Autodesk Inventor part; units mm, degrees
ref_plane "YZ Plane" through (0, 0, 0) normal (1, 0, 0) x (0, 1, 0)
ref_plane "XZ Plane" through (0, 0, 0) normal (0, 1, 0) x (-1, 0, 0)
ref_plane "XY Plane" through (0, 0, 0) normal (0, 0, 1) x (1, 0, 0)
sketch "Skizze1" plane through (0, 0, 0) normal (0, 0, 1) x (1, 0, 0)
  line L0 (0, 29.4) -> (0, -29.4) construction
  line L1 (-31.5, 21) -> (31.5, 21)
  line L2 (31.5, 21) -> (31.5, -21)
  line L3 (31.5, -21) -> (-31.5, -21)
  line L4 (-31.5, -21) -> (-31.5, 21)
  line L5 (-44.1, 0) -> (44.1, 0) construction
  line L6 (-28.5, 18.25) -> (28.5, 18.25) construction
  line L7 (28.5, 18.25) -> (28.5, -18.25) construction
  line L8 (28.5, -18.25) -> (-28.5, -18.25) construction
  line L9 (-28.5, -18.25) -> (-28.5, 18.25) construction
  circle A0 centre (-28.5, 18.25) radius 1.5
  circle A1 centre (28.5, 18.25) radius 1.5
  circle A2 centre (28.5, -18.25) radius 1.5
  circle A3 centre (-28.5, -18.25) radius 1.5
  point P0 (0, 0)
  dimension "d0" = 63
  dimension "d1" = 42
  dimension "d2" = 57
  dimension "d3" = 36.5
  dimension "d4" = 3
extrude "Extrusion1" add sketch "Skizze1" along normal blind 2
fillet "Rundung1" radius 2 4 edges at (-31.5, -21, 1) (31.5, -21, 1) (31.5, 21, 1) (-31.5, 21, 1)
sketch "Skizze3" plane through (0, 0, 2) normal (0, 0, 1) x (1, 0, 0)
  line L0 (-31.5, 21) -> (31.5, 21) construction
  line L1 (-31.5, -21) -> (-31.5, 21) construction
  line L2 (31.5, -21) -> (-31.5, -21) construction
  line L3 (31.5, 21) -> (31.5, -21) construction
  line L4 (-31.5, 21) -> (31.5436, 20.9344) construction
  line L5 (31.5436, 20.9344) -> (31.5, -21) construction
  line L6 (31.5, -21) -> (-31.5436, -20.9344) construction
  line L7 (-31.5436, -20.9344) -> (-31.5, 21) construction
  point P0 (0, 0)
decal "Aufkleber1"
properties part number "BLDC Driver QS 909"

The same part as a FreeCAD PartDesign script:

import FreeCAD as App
import Part
import Sketcher
from FreeCAD import Vector


def edges_at(feature, points):
    """Names of the edges that pass closest to the given points."""
    edges = feature.Shape.Edges
    near = lambda p: min(range(len(edges)), key=lambda i: edges[i].distToShape(Part.Vertex(*p))[0])
    return sorted({f"Edge{near(p) + 1}" for p in points})


def add_polygon(sketch, points):
    """Adds a closed chain of lines whose ends are joined by coincident constraints."""
    first, n = sketch.GeometryCount, len(points)
    for a, b in zip(points, points[1:] + points[:1]):
        sketch.addGeometry(Part.LineSegment(App.Vector(*a, 0), App.Vector(*b, 0)), False)
    for i in range(n):
        sketch.addConstraint(Sketcher.Constraint("Coincident", first + i, 2, first + (i + 1) % n, 1))

doc = App.newDocument("Part")
body = doc.addObject("PartDesign::Body", "Body")

sketch1 = body.newObject("Sketcher::SketchObject", "Sketch")
sketch1.AttachmentSupport = (doc.getObject("XY_Plane"), [""])
sketch1.MapMode = "FlatFace"
add_polygon(sketch1, [(31.5, 21), (-31.5, 21), (-31.5, -21), (31.5, -21)])
sketch1.addGeometry(Part.Circle(Vector(-28.5, -18.2, 0), Vector(0, 0, 1), 1.5), False)
sketch1.addGeometry(Part.Circle(Vector(28.5, -18.2, 0), Vector(0, 0, 1), 1.5), False)
sketch1.addGeometry(Part.Circle(Vector(-28.5, 18.2, 0), Vector(0, 0, 1), 1.5), False)
sketch1.addGeometry(Part.Circle(Vector(28.5, 18.2, 0), Vector(0, 0, 1), 1.5), False)
sketch1.addConstraint(Sketcher.Constraint("Horizontal", 0))
sketch1.addConstraint(Sketcher.Constraint("Vertical", 1))
sketch1.addConstraint(Sketcher.Constraint("Horizontal", 2))
sketch1.addConstraint(Sketcher.Constraint("Vertical", 3))
sketch1.addConstraint(Sketcher.Constraint("Equal", 4, 5))
sketch1.addConstraint(Sketcher.Constraint("Equal", 5, 6))
sketch1.addConstraint(Sketcher.Constraint("Equal", 6, 7))
sketch1.addConstraint(Sketcher.Constraint("Symmetric", 5, 3, 6, 3, -1, 1))
sketch1.addConstraint(Sketcher.Constraint("Symmetric", 4, 3, 7, 3, -1, 1))
sketch1.addConstraint(Sketcher.Constraint("Symmetric", 0, 2, 2, 2, -1, 1))
sketch1.addConstraint(Sketcher.Constraint("Symmetric", 4, 3, 5, 3, -2))
sketch1.addConstraint(Sketcher.Constraint("Diameter", 4, 3.0))
sketch1.addConstraint(Sketcher.Constraint("DistanceX", 0, 2, 0, 1, 63.0))
sketch1.addConstraint(Sketcher.Constraint("DistanceY", 1, 2, 1, 1, 42.0))
sketch1.addConstraint(Sketcher.Constraint("DistanceX", 4, 3, 5, 3, 57.0))
sketch1.addConstraint(Sketcher.Constraint("DistanceY", 4, 3, 6, 3, 36.5))
pad1 = body.newObject("PartDesign::Pad", "Pad")
pad1.Profile = sketch1
pad1.Length = 2
doc.recompute()

fillet = body.newObject("PartDesign::Fillet", "Fillet")
fillet.Base = (pad1, edges_at(pad1, [
    (-31.5, -21, 1),
    (31.5, -21, 1),
    (31.5, 21, 1),
    (-31.5, 21, 1),
]))
fillet.Radius = 2

doc.recompute()
